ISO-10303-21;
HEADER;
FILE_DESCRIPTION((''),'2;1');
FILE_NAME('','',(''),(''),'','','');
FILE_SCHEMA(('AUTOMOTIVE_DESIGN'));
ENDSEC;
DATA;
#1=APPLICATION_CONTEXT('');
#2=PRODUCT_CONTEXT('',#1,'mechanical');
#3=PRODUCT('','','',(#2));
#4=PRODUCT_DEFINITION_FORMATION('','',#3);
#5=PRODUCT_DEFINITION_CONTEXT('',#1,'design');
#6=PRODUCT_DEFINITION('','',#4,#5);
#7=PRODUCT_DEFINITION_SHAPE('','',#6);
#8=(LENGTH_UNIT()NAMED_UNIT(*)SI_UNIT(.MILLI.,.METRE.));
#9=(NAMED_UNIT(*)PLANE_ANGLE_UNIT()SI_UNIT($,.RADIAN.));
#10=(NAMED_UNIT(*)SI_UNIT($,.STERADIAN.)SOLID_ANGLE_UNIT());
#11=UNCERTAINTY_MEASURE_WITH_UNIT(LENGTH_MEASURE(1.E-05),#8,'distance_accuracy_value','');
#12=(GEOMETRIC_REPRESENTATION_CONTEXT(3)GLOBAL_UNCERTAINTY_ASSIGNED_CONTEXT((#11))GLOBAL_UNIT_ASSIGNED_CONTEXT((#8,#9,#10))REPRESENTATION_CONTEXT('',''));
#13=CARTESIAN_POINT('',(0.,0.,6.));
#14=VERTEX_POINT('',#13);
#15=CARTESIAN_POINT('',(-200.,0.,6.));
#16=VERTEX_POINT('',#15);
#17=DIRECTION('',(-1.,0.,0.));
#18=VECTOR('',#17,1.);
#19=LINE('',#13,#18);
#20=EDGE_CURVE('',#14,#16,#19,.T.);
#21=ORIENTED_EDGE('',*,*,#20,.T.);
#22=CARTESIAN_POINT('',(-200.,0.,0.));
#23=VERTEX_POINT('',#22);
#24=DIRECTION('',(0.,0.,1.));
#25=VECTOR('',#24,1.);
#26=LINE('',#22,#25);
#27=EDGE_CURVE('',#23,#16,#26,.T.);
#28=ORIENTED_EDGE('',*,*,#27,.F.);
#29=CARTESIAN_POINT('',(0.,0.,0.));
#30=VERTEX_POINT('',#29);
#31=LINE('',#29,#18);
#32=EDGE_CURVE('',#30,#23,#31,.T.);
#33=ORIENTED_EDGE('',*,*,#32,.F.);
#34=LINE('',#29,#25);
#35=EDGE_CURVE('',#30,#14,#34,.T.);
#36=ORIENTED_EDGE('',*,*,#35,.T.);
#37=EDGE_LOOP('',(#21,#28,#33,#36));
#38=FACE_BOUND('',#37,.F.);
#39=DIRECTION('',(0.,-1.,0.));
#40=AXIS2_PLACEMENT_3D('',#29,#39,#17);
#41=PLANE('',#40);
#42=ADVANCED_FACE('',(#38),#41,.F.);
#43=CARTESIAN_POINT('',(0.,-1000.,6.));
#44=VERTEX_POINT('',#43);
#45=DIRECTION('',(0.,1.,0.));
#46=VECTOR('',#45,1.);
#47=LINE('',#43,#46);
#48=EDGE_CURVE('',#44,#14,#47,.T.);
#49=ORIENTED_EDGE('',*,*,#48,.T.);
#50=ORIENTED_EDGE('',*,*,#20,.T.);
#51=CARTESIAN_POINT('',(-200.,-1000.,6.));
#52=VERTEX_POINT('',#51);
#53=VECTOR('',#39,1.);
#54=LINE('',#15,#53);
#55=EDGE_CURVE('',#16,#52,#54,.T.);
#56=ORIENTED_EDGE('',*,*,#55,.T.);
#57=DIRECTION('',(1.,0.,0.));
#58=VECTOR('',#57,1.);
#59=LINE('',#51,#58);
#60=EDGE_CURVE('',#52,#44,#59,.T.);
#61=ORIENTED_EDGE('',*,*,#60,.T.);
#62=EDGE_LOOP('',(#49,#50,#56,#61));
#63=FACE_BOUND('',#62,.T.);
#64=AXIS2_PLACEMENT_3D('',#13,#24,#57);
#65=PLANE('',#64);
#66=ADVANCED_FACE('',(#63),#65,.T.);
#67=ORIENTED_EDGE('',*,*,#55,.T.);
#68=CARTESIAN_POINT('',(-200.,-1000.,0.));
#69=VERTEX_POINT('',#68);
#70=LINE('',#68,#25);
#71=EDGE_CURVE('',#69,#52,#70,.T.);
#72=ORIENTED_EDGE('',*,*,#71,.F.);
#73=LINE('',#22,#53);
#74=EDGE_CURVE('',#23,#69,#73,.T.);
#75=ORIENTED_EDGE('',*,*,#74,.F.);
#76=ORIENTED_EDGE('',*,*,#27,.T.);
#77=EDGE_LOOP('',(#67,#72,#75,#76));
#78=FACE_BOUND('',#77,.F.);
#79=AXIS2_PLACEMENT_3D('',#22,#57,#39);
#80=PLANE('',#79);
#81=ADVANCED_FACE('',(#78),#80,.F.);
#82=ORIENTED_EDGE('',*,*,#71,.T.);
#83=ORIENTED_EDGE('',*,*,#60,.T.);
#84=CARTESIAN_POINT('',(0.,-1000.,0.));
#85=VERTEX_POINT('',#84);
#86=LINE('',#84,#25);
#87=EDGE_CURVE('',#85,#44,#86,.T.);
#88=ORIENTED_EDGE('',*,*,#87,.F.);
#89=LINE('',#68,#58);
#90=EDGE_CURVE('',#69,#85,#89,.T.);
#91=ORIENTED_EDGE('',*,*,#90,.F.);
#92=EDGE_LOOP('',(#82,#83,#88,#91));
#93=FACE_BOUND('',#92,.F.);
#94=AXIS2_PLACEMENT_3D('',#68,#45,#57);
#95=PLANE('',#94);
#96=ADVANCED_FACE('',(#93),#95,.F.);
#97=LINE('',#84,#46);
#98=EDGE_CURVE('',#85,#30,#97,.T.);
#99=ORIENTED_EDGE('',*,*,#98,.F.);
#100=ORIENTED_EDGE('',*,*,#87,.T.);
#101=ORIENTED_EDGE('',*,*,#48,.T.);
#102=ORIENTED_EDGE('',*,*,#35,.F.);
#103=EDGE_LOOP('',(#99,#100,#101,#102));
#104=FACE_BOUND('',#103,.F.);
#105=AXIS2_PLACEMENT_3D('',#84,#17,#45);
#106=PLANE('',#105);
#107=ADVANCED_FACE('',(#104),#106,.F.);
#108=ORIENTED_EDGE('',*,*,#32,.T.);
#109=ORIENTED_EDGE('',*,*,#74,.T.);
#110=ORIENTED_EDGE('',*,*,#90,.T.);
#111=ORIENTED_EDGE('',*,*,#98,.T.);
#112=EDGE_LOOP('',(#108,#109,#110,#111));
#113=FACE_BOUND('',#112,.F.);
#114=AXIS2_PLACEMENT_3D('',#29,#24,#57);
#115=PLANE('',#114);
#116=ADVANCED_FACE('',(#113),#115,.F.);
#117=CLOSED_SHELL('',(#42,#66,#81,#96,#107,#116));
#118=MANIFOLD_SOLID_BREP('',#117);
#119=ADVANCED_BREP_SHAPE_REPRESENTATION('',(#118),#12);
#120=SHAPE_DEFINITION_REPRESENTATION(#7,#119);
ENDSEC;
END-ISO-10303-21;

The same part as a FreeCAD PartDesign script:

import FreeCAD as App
import Part
import Sketcher
Q = App.Units.Quantity


def add_polygon(sketch, points):
    """Adds a closed chain of lines whose ends are joined by coincident constraints."""
    first, n = sketch.GeometryCount, len(points)
    for a, b in zip(points, points[1:] + points[:1]):
        sketch.addGeometry(Part.LineSegment(App.Vector(*a, 0), App.Vector(*b, 0)), False)
    for i in range(n):
        sketch.addConstraint(Sketcher.Constraint("Coincident", first + i, 2, first + (i + 1) % n, 1))

doc = App.newDocument("Part")
body = doc.addObject("PartDesign::Body", "Body")

# Sketch on XY plane
sketch1 = body.newObject("Sketcher::SketchObject", "Sketch")
sketch1.AttachmentSupport = (doc.getObject("XY_Plane"), [""])
sketch1.MapMode = "FlatFace"
add_polygon(sketch1, [(0, -1000), (0, 0), (-200, 0), (-200, -1000)])  # lines 0-3
sketch1.addConstraint([
    Sketcher.Constraint("Vertical", 0),
    Sketcher.Constraint("Horizontal", 1),
    Sketcher.Constraint("Vertical", 2),
    Sketcher.Constraint("Horizontal", 3),
    Sketcher.Constraint("Coincident", 0, 2, -1, 1),
    Sketcher.Constraint("DistanceX", 1, 2, 1, 1, Q("200 mm")),
    Sketcher.Constraint("DistanceY", 0, 1, 0, 2, Q("1000 mm")),
])
pad1 = body.newObject("PartDesign::Pad", "Pad")
pad1.Profile = sketch1
pad1.Length = 6

doc.recompute()
